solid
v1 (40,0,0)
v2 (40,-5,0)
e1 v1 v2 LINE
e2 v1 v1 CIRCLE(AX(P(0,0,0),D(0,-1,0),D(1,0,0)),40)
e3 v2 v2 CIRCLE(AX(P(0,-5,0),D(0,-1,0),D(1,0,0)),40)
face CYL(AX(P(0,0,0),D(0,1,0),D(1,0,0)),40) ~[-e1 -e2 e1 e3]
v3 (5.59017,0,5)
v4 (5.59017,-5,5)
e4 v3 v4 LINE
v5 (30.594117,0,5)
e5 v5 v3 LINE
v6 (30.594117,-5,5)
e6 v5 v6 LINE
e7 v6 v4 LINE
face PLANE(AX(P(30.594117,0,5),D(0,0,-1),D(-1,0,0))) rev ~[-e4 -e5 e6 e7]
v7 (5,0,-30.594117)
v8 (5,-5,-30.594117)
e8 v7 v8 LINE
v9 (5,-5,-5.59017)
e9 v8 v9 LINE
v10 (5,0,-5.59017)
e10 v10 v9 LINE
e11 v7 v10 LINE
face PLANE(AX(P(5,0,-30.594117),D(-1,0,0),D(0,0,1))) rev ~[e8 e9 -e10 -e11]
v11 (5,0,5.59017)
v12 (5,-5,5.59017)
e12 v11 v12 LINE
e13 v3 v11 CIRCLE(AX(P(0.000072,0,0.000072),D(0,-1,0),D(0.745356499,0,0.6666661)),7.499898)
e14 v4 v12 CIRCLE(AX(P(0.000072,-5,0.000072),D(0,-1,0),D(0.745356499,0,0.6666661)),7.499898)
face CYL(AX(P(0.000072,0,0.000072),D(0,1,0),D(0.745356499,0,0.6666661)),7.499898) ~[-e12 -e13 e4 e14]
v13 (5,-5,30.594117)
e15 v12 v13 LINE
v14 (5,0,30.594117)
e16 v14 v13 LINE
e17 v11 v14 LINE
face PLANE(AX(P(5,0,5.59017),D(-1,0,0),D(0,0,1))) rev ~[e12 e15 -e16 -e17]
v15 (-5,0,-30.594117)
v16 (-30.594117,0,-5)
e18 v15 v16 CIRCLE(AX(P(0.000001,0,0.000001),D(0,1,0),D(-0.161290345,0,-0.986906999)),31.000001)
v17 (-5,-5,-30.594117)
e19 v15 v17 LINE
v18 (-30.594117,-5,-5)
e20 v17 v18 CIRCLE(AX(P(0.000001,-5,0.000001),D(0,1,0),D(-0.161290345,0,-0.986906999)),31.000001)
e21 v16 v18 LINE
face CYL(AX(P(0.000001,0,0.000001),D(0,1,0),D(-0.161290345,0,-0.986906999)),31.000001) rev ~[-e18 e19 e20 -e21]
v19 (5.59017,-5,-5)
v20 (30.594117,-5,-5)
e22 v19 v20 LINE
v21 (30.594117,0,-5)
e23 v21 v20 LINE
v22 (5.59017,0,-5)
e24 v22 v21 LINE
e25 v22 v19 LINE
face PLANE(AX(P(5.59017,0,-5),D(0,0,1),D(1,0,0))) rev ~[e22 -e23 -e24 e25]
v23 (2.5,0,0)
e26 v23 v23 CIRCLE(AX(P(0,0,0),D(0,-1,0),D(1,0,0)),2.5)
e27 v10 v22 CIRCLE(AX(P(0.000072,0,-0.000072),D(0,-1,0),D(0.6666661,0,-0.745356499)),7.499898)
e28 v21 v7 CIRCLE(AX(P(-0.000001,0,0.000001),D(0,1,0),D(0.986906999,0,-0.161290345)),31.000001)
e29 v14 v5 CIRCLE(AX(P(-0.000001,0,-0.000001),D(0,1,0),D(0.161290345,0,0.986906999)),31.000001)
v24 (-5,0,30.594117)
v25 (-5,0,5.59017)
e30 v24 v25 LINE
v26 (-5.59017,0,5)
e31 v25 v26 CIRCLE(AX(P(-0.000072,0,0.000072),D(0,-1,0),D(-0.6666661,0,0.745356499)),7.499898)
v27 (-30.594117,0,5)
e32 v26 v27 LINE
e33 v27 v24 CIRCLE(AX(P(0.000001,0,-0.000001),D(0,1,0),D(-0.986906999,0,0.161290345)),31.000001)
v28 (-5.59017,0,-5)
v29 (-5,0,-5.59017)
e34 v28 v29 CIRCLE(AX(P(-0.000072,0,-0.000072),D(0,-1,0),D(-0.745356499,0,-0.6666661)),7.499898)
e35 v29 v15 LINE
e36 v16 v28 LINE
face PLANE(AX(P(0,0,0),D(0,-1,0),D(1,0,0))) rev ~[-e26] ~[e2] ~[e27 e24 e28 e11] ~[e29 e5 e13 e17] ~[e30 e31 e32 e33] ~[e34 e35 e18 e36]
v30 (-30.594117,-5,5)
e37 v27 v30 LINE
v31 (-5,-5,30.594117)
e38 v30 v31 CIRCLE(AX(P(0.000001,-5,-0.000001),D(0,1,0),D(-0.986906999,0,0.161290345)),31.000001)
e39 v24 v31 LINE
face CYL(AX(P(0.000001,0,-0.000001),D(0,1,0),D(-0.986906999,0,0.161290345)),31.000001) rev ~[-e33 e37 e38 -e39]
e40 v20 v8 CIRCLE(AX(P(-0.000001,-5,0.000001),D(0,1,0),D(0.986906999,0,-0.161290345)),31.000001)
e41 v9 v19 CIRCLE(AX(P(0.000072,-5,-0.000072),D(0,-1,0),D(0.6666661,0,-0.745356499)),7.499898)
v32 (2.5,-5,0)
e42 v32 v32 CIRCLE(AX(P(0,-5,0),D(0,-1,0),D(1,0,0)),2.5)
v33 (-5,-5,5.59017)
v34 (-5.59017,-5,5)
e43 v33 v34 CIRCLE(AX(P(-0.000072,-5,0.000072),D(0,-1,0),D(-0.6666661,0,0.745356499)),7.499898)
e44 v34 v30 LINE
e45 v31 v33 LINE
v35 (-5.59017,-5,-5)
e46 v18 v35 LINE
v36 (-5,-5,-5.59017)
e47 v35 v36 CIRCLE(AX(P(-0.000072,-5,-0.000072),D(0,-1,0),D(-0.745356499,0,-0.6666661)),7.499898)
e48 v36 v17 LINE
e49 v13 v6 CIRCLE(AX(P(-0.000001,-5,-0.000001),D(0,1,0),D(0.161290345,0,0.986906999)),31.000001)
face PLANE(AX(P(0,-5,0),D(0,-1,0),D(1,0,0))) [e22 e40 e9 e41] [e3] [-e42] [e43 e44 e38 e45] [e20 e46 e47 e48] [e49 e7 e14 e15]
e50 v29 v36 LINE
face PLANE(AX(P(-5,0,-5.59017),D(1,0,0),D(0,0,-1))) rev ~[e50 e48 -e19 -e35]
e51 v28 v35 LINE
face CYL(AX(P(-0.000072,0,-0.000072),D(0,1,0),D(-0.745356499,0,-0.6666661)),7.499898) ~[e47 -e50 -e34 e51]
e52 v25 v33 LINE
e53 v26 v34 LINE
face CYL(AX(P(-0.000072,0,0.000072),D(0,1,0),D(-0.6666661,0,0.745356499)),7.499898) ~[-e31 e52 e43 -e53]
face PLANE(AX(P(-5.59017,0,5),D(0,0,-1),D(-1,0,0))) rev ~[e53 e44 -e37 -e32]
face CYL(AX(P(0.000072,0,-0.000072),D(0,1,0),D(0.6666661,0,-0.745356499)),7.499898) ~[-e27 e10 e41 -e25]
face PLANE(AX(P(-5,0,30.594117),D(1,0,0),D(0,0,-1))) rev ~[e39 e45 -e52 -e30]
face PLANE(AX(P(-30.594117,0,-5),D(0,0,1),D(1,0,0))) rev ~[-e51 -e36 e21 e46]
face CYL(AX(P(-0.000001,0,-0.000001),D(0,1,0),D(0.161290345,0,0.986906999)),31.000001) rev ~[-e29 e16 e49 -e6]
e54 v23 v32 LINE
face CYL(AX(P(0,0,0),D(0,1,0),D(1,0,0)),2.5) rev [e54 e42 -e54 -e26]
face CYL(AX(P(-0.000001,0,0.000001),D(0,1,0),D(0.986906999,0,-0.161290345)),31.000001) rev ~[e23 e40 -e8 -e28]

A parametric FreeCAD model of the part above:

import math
import FreeCAD as App
import Part
import Sketcher
Q = App.Units.Quantity

doc = App.newDocument("Part")
body = doc.addObject("PartDesign::Body", "Body")

# Sketch on XZ plane
sketch1 = body.newObject("Sketcher::SketchObject", "Sketch")
sketch1.AttachmentSupport = (doc.getObject("XZ_Plane"), [""])
sketch1.MapMode = "FlatFace"
sketch1.addGeometry(Part.Circle(App.Vector(0, 0, 0), App.Vector(0, 0, 1), 40), False)
sketch1.addGeometry(Part.LineSegment(App.Vector(-5, -5.6, 0), App.Vector(-5, -30.6, 0)), False)
sketch1.addGeometry(Part.ArcOfCircle(Part.Circle(App.Vector(0, 0, 0), App.Vector(0, 0, 1), 31), math.radians(-171), math.radians(-99)), False)
sketch1.addGeometry(Part.LineSegment(App.Vector(-30.6, -5, 0), App.Vector(-5.6, -5, 0)), False)
sketch1.addGeometry(Part.ArcOfCircle(Part.Circle(App.Vector(0, 0, 0), App.Vector(0, 0, 1), 7.5), math.radians(-138.19), math.radians(-131.81)), False)
sketch1.addGeometry(Part.Circle(App.Vector(0, 0, 0), App.Vector(0, 0, 1), 2.5), False)
sketch1.addGeometry(Part.LineSegment(App.Vector(5, -30.6, 0), App.Vector(5, -5.6, 0)), False)
sketch1.addGeometry(Part.ArcOfCircle(Part.Circle(App.Vector(0, 0, 0), App.Vector(0, 0, 1), 7.5), math.radians(-48.19), math.radians(-41.81)), False)
sketch1.addGeometry(Part.LineSegment(App.Vector(5.6, -5, 0), App.Vector(30.6, -5, 0)), False)
sketch1.addGeometry(Part.ArcOfCircle(Part.Circle(App.Vector(0, 0, 0), App.Vector(0, 0, 1), 31), math.radians(-81), math.radians(-9)), False)
sketch1.addGeometry(Part.LineSegment(App.Vector(-5, 30.6, 0), App.Vector(-5, 5.6, 0)), False)
sketch1.addGeometry(Part.ArcOfCircle(Part.Circle(App.Vector(0, 0, 0), App.Vector(0, 0, 1), 7.5), math.radians(131.81), math.radians(138.19)), False)
sketch1.addGeometry(Part.LineSegment(App.Vector(-5.6, 5, 0), App.Vector(-30.6, 5, 0)), False)
sketch1.addGeometry(Part.ArcOfCircle(Part.Circle(App.Vector(0, 0, 0), App.Vector(0, 0, 1), 31), math.radians(99), math.radians(171)), False)
sketch1.addGeometry(Part.ArcOfCircle(Part.Circle(App.Vector(0, 0, 0), App.Vector(0, 0, 1), 31), math.radians(9), math.radians(81)), False)
sketch1.addGeometry(Part.LineSegment(App.Vector(30.6, 5, 0), App.Vector(5.6, 5, 0)), False)
sketch1.addGeometry(Part.ArcOfCircle(Part.Circle(App.Vector(0, 0, 0), App.Vector(0, 0, 1), 7.5), math.radians(41.81), math.radians(48.19)), False)
sketch1.addGeometry(Part.LineSegment(App.Vector(5, 5.6, 0), App.Vector(5, 30.6, 0)), False)
sketch1.addConstraint(Sketcher.Constraint("Coincident", 1, 2, 2, 2))
sketch1.addConstraint(Sketcher.Constraint("Coincident", 2, 1, 3, 1))
sketch1.addConstraint(Sketcher.Constraint("Coincident", 3, 2, 4, 1))
sketch1.addConstraint(Sketcher.Constraint("Coincident", 4, 2, 1, 1))
sketch1.addConstraint(Sketcher.Constraint("Coincident", 6, 2, 7, 1))
sketch1.addConstraint(Sketcher.Constraint("Coincident", 7, 2, 8, 1))
sketch1.addConstraint(Sketcher.Constraint("Coincident", 8, 2, 9, 2))
sketch1.addConstraint(Sketcher.Constraint("Coincident", 9, 1, 6, 1))
sketch1.addConstraint(Sketcher.Constraint("Coincident", 10, 2, 11, 1))
sketch1.addConstraint(Sketcher.Constraint("Coincident", 11, 2, 12, 1))
sketch1.addConstraint(Sketcher.Constraint("Coincident", 12, 2, 13, 2))
sketch1.addConstraint(Sketcher.Constraint("Coincident", 13, 1, 10, 1))
sketch1.addConstraint(Sketcher.Constraint("Coincident", 14, 1, 15, 1))
sketch1.addConstraint(Sketcher.Constraint("Coincident", 15, 2, 16, 1))
sketch1.addConstraint(Sketcher.Constraint("Coincident", 16, 2, 17, 1))
sketch1.addConstraint(Sketcher.Constraint("Coincident", 17, 2, 14, 2))
sketch1.addConstraint(Sketcher.Constraint("Vertical", 1))
sketch1.addConstraint(Sketcher.Constraint("Horizontal", 3))
sketch1.addConstraint(Sketcher.Constraint("Vertical", 6))
sketch1.addConstraint(Sketcher.Constraint("Horizontal", 8))
sketch1.addConstraint(Sketcher.Constraint("Vertical", 10))
sketch1.addConstraint(Sketcher.Constraint("Horizontal", 12))
sketch1.addConstraint(Sketcher.Constraint("Horizontal", 15))
sketch1.addConstraint(Sketcher.Constraint("Vertical", 17))
sketch1.addConstraint(Sketcher.Constraint("Coincident", 0, 3, -1, 1))
sketch1.addConstraint(Sketcher.Constraint("Coincident", 2, 3, -1, 1))
sketch1.addConstraint(Sketcher.Constraint("Coincident", 5, 3, -1, 1))
sketch1.addConstraint(Sketcher.Constraint("Coincident", 9, 3, -1, 1))
sketch1.addConstraint(Sketcher.Constraint("Coincident", 13, 3, -1, 1))
sketch1.addConstraint(Sketcher.Constraint("Coincident", 14, 3, -1, 1))
sketch1.addConstraint(Sketcher.Constraint("Equal", 4, 7))
sketch1.addConstraint(Sketcher.Constraint("Equal", 2, 9))
sketch1.addConstraint(Sketcher.Constraint("Equal", 7, 11))
sketch1.addConstraint(Sketcher.Constraint("Equal", 9, 13))
sketch1.addConstraint(Sketcher.Constraint("Equal", 13, 14))
sketch1.addConstraint(Sketcher.Constraint("Equal", 11, 16))
sketch1.addConstraint(Sketcher.Constraint("Symmetric", 7, 3, 11, 3, -1, 1))
sketch1.addConstraint(Sketcher.Constraint("Symmetric", 4, 3, 16, 3, -1, 1))
sketch1.addConstraint(Sketcher.Constraint("Symmetric", 4, 3, 7, 3, -2))
sketch1.addConstraint(Sketcher.Constraint("Horizontal", 4, 2, 6, 2))
sketch1.addConstraint(Sketcher.Constraint("Horizontal", 3, 2, 7, 2))
sketch1.addConstraint(Sketcher.Constraint("Horizontal", 12, 2, 14, 1))
sketch1.addConstraint(Sketcher.Constraint("Horizontal", 10, 2, 16, 2))
sketch1.addConstraint(Sketcher.Constraint("Vertical", 4, 2, 10, 2))
sketch1.addConstraint(Sketcher.Constraint("Vertical", 3, 2, 11, 2))
sketch1.addConstraint(Sketcher.Constraint("Equal", 15, 1))
sketch1.addConstraint(Sketcher.Constraint("Diameter", 0, Q("80 mm")))
sketch1.addConstraint(Sketcher.Constraint("Diameter", 5, Q("5 mm")))
sketch1.addConstraint(Sketcher.Constraint("Radius", 2, Q("31.000001 mm")))
sketch1.addConstraint(Sketcher.Constraint("DistanceX", 1, 2, -1, 1, Q("5 mm")))
sketch1.addConstraint(Sketcher.Constraint("DistanceY", 2, 1, -1, 1, Q("5 mm")))
sketch1.addConstraint(Sketcher.Constraint("Radius", 4, Q("7.499898 mm")))
sketch1.addConstraint(Sketcher.Constraint("DistanceX", 3, 2, 4, 3, Q("5.590098 mm")))
pad1 = body.newObject("PartDesign::Pad", "Pad")
pad1.Profile = sketch1
pad1.Length = 5

doc.recompute()
